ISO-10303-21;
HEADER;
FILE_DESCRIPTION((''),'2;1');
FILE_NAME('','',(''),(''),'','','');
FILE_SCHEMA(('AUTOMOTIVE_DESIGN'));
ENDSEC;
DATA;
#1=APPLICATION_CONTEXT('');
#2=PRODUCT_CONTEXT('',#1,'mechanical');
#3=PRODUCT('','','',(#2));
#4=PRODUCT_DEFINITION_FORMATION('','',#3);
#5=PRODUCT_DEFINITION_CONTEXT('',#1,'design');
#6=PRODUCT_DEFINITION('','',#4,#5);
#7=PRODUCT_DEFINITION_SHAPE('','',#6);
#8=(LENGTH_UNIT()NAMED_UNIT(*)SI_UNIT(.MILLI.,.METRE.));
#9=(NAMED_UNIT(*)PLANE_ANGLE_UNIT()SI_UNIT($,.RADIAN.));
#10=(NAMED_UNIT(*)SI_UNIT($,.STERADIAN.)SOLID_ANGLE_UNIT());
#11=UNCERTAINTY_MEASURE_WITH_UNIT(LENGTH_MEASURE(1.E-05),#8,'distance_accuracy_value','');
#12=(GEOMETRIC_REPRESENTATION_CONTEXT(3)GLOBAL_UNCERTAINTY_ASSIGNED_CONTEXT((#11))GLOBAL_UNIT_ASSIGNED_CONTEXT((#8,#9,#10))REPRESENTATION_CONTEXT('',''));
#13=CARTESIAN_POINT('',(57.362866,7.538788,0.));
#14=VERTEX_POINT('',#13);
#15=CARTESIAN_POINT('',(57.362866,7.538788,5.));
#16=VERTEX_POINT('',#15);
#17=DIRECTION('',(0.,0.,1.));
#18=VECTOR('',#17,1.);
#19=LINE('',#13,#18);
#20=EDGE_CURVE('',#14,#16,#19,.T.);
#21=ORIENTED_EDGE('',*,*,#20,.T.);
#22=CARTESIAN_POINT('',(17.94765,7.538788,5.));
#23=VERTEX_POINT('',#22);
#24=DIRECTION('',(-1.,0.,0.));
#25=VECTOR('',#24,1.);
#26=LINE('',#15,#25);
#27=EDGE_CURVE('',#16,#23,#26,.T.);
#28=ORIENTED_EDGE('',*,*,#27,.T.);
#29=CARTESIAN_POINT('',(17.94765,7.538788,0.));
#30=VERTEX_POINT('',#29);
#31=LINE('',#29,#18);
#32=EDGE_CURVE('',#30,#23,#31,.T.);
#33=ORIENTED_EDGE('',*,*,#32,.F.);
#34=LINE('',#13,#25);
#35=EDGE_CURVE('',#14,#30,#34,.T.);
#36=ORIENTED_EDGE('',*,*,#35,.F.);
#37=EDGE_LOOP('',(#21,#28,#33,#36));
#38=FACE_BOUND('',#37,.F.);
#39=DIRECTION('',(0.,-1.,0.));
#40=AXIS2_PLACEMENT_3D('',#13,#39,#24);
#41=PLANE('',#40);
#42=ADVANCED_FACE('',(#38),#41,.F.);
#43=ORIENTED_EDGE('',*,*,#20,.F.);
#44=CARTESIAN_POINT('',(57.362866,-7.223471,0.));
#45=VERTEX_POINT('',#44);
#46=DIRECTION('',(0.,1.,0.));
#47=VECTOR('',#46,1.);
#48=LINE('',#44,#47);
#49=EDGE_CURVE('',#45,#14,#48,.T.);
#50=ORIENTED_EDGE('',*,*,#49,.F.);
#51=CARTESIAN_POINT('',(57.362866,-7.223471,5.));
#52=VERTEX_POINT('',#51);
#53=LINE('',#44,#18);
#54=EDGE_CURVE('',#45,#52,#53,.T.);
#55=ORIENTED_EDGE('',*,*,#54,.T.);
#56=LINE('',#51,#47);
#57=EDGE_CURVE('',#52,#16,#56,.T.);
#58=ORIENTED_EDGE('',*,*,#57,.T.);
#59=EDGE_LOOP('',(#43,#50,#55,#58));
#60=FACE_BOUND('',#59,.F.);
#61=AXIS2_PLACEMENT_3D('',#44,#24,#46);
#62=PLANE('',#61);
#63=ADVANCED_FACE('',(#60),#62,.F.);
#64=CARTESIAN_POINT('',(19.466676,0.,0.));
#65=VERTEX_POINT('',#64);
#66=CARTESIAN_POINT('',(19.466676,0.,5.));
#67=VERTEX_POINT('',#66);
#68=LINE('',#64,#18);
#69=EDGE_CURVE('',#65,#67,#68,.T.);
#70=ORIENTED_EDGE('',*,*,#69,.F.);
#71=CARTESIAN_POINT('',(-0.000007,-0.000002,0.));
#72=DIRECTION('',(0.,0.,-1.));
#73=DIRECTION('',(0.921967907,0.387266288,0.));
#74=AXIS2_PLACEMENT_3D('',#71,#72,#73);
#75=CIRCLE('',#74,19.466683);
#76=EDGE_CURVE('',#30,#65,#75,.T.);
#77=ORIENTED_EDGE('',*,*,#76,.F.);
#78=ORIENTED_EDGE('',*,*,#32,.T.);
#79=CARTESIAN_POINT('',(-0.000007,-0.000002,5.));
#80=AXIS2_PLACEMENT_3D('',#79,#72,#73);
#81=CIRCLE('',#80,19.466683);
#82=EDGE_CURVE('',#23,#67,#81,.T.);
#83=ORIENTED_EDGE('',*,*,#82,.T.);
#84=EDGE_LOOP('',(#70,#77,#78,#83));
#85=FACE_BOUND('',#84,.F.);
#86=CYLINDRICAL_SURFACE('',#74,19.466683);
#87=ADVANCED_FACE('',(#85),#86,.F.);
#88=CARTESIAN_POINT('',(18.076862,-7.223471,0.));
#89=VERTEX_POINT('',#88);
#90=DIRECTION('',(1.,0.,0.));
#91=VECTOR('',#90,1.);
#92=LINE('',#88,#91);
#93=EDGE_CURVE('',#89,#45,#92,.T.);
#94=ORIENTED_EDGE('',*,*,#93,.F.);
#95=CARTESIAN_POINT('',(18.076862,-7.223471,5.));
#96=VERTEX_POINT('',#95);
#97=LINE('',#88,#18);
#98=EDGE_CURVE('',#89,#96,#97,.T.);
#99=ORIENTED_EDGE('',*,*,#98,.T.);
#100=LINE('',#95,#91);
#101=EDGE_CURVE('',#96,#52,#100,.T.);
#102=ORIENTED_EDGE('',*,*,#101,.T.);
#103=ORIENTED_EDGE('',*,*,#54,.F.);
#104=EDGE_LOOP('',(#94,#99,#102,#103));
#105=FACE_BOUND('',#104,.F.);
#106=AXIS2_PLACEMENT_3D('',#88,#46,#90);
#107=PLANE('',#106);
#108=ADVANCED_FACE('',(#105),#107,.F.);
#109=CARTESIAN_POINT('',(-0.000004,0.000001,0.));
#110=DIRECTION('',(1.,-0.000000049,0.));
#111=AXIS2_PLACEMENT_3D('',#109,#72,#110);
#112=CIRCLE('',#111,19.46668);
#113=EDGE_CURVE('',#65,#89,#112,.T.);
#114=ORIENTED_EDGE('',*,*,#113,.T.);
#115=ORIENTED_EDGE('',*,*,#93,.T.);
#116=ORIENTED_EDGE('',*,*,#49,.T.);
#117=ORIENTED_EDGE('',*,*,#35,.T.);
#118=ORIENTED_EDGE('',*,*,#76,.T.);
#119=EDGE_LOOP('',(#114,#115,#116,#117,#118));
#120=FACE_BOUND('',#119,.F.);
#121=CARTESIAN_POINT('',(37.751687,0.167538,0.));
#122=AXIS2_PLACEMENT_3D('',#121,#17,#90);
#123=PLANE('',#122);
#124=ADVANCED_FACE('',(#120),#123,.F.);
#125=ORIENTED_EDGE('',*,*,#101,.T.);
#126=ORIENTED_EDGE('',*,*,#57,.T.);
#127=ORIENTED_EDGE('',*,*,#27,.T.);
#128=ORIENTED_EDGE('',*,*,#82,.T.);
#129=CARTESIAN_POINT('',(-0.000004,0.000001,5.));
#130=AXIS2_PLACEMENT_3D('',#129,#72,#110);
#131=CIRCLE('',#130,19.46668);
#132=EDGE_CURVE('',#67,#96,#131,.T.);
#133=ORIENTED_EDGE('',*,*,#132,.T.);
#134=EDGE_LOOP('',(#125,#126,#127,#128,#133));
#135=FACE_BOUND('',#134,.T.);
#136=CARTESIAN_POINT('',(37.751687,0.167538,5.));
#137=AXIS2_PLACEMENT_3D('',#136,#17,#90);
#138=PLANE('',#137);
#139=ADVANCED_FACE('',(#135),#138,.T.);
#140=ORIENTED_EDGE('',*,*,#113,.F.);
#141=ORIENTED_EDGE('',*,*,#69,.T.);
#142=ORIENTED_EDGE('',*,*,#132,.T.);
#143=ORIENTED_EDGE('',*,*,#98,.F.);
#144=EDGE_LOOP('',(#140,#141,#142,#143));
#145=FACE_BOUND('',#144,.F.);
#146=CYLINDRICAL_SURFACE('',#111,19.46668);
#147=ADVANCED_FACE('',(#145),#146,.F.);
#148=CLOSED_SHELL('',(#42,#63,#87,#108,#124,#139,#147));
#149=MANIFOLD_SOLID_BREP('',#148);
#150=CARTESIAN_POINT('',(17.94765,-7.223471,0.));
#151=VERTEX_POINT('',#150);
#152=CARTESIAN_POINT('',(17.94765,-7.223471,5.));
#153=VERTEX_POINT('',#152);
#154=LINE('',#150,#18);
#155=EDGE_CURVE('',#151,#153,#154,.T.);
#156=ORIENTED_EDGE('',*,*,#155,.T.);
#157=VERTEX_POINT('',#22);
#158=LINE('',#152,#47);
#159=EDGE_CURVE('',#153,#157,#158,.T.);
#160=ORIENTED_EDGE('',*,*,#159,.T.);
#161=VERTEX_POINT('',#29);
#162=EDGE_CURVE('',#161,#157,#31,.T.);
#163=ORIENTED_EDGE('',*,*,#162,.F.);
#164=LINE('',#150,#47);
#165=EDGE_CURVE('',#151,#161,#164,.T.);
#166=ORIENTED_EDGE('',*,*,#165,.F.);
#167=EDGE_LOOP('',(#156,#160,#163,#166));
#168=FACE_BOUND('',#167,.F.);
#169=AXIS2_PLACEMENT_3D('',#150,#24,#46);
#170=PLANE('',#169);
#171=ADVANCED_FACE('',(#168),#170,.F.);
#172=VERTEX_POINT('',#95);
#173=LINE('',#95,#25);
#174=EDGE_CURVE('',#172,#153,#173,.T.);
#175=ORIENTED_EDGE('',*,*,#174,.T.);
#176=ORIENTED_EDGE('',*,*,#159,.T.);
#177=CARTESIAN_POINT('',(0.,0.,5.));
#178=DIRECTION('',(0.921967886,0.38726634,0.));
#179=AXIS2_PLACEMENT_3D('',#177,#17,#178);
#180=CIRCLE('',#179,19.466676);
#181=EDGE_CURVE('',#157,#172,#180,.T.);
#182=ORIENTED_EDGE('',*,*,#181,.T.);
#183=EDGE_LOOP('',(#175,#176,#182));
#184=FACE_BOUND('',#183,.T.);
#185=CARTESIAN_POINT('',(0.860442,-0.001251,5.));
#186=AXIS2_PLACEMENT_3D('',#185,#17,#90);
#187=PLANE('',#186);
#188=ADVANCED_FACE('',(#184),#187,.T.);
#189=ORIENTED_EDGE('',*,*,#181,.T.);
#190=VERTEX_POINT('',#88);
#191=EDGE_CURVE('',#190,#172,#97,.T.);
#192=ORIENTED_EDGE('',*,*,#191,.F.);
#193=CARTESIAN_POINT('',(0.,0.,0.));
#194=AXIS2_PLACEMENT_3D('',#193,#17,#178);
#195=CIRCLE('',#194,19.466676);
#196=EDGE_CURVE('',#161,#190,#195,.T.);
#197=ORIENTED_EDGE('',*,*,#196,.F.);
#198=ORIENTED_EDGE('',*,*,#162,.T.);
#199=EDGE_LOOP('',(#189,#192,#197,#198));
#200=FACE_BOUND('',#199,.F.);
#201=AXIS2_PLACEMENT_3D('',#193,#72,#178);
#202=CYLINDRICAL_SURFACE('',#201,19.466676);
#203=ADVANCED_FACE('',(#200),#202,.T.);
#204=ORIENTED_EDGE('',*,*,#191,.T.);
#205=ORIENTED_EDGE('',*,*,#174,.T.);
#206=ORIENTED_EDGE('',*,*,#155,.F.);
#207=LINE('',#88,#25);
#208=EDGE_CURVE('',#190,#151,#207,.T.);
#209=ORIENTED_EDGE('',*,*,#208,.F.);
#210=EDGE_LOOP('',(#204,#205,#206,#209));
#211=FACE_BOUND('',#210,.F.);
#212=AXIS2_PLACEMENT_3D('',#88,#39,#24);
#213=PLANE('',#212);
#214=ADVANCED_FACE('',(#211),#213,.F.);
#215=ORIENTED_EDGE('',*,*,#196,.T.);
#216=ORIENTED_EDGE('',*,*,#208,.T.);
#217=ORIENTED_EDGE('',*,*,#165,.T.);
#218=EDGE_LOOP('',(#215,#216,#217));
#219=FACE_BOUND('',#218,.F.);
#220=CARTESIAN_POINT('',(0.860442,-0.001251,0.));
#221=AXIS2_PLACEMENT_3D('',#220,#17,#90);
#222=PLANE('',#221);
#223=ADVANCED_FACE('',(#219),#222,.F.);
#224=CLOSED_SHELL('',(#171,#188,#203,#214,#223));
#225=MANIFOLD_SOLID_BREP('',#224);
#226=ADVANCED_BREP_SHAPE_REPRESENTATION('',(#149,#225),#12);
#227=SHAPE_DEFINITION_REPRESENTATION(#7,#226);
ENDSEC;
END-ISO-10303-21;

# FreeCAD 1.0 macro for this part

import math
import FreeCAD as App
import Part
import Sketcher

V = App.Vector
Q = App.Units.Quantity

doc = App.newDocument("Part")
body = doc.addObject("PartDesign::Body", "Body")
body.AllowCompound = True

# Sketch on XY plane
sketch1 = body.newObject("Sketcher::SketchObject", "Sketch")
sketch1.AttachmentSupport = (doc.getObject("XY_Plane"), [""])
sketch1.MapMode = "FlatFace"
sketch1.addGeometry([
    Part.LineSegment(V(17.95, -7.22, 0), V(17.95, 7.54, 0)),  # 0
    Part.ArcOfCircle(Part.Circle(V(0, 0, 0), V(0, 0, 1), 19.47), math.radians(23), math.radians(338)),  # 1
    Part.LineSegment(V(18.08, -7.22, 0), V(17.95, -7.22, 0)),  # 2
    Part.ArcOfCircle(Part.Circle(V(0, 0, 0), V(0, 0, 1), 19.47), math.radians(0), math.radians(23)),  # 3
    Part.ArcOfCircle(Part.Circle(V(0, 0, 0), V(0, 0, 1), 19.47), math.radians(-22), math.radians(0)),  # 4
    Part.LineSegment(V(18.08, -7.22, 0), V(57.36, -7.22, 0)),  # 5
    Part.LineSegment(V(57.36, -7.22, 0), V(57.36, 7.54, 0)),  # 6
    Part.LineSegment(V(57.36, 7.54, 0), V(17.95, 7.54, 0)),  # 7
], False)
sketch1.addConstraint([
    Sketcher.Constraint("Coincident", 0, 2, 1, 1),
    Sketcher.Constraint("Coincident", 1, 2, 2, 1),
    Sketcher.Constraint("Coincident", 2, 2, 0, 1),
    Sketcher.Constraint("Tangent", 3, 1, 4, 2),
    Sketcher.Constraint("Coincident", 4, 1, 5, 1),
    Sketcher.Constraint("Coincident", 5, 2, 6, 1),
    Sketcher.Constraint("Coincident", 6, 2, 7, 1),
    Sketcher.Constraint("Coincident", 7, 2, 3, 2),
    Sketcher.Constraint("Vertical", 0),
    Sketcher.Constraint("Horizontal", 2),
    Sketcher.Constraint("Horizontal", 5),
    Sketcher.Constraint("Vertical", 6),
    Sketcher.Constraint("Horizontal", 7),
    Sketcher.Constraint("Coincident", 1, 3, -1, 1),
    Sketcher.Constraint("Coincident", 3, 3, -1, 1),
    Sketcher.Constraint("Coincident", 4, 1, 1, 2),
    Sketcher.Constraint("Coincident", 7, 2, 0, 2),
    Sketcher.Constraint("PointOnObject", 3, 1, -1),
    Sketcher.Constraint("Radius", 4, Q("19.46668 mm")),
    Sketcher.Constraint("DistanceX", 2, 2, 2, 1, Q("0.129212 mm")),
    Sketcher.Constraint("DistanceY", 0, 1, 0, 2, Q("14.762259 mm")),
    Sketcher.Constraint("DistanceX", 5, 1, 5, 2, Q("39.286004 mm")),
])
pad1 = body.newObject("PartDesign::Pad", "Pad")
pad1.Profile = sketch1
pad1.Length = 5

doc.recompute()
